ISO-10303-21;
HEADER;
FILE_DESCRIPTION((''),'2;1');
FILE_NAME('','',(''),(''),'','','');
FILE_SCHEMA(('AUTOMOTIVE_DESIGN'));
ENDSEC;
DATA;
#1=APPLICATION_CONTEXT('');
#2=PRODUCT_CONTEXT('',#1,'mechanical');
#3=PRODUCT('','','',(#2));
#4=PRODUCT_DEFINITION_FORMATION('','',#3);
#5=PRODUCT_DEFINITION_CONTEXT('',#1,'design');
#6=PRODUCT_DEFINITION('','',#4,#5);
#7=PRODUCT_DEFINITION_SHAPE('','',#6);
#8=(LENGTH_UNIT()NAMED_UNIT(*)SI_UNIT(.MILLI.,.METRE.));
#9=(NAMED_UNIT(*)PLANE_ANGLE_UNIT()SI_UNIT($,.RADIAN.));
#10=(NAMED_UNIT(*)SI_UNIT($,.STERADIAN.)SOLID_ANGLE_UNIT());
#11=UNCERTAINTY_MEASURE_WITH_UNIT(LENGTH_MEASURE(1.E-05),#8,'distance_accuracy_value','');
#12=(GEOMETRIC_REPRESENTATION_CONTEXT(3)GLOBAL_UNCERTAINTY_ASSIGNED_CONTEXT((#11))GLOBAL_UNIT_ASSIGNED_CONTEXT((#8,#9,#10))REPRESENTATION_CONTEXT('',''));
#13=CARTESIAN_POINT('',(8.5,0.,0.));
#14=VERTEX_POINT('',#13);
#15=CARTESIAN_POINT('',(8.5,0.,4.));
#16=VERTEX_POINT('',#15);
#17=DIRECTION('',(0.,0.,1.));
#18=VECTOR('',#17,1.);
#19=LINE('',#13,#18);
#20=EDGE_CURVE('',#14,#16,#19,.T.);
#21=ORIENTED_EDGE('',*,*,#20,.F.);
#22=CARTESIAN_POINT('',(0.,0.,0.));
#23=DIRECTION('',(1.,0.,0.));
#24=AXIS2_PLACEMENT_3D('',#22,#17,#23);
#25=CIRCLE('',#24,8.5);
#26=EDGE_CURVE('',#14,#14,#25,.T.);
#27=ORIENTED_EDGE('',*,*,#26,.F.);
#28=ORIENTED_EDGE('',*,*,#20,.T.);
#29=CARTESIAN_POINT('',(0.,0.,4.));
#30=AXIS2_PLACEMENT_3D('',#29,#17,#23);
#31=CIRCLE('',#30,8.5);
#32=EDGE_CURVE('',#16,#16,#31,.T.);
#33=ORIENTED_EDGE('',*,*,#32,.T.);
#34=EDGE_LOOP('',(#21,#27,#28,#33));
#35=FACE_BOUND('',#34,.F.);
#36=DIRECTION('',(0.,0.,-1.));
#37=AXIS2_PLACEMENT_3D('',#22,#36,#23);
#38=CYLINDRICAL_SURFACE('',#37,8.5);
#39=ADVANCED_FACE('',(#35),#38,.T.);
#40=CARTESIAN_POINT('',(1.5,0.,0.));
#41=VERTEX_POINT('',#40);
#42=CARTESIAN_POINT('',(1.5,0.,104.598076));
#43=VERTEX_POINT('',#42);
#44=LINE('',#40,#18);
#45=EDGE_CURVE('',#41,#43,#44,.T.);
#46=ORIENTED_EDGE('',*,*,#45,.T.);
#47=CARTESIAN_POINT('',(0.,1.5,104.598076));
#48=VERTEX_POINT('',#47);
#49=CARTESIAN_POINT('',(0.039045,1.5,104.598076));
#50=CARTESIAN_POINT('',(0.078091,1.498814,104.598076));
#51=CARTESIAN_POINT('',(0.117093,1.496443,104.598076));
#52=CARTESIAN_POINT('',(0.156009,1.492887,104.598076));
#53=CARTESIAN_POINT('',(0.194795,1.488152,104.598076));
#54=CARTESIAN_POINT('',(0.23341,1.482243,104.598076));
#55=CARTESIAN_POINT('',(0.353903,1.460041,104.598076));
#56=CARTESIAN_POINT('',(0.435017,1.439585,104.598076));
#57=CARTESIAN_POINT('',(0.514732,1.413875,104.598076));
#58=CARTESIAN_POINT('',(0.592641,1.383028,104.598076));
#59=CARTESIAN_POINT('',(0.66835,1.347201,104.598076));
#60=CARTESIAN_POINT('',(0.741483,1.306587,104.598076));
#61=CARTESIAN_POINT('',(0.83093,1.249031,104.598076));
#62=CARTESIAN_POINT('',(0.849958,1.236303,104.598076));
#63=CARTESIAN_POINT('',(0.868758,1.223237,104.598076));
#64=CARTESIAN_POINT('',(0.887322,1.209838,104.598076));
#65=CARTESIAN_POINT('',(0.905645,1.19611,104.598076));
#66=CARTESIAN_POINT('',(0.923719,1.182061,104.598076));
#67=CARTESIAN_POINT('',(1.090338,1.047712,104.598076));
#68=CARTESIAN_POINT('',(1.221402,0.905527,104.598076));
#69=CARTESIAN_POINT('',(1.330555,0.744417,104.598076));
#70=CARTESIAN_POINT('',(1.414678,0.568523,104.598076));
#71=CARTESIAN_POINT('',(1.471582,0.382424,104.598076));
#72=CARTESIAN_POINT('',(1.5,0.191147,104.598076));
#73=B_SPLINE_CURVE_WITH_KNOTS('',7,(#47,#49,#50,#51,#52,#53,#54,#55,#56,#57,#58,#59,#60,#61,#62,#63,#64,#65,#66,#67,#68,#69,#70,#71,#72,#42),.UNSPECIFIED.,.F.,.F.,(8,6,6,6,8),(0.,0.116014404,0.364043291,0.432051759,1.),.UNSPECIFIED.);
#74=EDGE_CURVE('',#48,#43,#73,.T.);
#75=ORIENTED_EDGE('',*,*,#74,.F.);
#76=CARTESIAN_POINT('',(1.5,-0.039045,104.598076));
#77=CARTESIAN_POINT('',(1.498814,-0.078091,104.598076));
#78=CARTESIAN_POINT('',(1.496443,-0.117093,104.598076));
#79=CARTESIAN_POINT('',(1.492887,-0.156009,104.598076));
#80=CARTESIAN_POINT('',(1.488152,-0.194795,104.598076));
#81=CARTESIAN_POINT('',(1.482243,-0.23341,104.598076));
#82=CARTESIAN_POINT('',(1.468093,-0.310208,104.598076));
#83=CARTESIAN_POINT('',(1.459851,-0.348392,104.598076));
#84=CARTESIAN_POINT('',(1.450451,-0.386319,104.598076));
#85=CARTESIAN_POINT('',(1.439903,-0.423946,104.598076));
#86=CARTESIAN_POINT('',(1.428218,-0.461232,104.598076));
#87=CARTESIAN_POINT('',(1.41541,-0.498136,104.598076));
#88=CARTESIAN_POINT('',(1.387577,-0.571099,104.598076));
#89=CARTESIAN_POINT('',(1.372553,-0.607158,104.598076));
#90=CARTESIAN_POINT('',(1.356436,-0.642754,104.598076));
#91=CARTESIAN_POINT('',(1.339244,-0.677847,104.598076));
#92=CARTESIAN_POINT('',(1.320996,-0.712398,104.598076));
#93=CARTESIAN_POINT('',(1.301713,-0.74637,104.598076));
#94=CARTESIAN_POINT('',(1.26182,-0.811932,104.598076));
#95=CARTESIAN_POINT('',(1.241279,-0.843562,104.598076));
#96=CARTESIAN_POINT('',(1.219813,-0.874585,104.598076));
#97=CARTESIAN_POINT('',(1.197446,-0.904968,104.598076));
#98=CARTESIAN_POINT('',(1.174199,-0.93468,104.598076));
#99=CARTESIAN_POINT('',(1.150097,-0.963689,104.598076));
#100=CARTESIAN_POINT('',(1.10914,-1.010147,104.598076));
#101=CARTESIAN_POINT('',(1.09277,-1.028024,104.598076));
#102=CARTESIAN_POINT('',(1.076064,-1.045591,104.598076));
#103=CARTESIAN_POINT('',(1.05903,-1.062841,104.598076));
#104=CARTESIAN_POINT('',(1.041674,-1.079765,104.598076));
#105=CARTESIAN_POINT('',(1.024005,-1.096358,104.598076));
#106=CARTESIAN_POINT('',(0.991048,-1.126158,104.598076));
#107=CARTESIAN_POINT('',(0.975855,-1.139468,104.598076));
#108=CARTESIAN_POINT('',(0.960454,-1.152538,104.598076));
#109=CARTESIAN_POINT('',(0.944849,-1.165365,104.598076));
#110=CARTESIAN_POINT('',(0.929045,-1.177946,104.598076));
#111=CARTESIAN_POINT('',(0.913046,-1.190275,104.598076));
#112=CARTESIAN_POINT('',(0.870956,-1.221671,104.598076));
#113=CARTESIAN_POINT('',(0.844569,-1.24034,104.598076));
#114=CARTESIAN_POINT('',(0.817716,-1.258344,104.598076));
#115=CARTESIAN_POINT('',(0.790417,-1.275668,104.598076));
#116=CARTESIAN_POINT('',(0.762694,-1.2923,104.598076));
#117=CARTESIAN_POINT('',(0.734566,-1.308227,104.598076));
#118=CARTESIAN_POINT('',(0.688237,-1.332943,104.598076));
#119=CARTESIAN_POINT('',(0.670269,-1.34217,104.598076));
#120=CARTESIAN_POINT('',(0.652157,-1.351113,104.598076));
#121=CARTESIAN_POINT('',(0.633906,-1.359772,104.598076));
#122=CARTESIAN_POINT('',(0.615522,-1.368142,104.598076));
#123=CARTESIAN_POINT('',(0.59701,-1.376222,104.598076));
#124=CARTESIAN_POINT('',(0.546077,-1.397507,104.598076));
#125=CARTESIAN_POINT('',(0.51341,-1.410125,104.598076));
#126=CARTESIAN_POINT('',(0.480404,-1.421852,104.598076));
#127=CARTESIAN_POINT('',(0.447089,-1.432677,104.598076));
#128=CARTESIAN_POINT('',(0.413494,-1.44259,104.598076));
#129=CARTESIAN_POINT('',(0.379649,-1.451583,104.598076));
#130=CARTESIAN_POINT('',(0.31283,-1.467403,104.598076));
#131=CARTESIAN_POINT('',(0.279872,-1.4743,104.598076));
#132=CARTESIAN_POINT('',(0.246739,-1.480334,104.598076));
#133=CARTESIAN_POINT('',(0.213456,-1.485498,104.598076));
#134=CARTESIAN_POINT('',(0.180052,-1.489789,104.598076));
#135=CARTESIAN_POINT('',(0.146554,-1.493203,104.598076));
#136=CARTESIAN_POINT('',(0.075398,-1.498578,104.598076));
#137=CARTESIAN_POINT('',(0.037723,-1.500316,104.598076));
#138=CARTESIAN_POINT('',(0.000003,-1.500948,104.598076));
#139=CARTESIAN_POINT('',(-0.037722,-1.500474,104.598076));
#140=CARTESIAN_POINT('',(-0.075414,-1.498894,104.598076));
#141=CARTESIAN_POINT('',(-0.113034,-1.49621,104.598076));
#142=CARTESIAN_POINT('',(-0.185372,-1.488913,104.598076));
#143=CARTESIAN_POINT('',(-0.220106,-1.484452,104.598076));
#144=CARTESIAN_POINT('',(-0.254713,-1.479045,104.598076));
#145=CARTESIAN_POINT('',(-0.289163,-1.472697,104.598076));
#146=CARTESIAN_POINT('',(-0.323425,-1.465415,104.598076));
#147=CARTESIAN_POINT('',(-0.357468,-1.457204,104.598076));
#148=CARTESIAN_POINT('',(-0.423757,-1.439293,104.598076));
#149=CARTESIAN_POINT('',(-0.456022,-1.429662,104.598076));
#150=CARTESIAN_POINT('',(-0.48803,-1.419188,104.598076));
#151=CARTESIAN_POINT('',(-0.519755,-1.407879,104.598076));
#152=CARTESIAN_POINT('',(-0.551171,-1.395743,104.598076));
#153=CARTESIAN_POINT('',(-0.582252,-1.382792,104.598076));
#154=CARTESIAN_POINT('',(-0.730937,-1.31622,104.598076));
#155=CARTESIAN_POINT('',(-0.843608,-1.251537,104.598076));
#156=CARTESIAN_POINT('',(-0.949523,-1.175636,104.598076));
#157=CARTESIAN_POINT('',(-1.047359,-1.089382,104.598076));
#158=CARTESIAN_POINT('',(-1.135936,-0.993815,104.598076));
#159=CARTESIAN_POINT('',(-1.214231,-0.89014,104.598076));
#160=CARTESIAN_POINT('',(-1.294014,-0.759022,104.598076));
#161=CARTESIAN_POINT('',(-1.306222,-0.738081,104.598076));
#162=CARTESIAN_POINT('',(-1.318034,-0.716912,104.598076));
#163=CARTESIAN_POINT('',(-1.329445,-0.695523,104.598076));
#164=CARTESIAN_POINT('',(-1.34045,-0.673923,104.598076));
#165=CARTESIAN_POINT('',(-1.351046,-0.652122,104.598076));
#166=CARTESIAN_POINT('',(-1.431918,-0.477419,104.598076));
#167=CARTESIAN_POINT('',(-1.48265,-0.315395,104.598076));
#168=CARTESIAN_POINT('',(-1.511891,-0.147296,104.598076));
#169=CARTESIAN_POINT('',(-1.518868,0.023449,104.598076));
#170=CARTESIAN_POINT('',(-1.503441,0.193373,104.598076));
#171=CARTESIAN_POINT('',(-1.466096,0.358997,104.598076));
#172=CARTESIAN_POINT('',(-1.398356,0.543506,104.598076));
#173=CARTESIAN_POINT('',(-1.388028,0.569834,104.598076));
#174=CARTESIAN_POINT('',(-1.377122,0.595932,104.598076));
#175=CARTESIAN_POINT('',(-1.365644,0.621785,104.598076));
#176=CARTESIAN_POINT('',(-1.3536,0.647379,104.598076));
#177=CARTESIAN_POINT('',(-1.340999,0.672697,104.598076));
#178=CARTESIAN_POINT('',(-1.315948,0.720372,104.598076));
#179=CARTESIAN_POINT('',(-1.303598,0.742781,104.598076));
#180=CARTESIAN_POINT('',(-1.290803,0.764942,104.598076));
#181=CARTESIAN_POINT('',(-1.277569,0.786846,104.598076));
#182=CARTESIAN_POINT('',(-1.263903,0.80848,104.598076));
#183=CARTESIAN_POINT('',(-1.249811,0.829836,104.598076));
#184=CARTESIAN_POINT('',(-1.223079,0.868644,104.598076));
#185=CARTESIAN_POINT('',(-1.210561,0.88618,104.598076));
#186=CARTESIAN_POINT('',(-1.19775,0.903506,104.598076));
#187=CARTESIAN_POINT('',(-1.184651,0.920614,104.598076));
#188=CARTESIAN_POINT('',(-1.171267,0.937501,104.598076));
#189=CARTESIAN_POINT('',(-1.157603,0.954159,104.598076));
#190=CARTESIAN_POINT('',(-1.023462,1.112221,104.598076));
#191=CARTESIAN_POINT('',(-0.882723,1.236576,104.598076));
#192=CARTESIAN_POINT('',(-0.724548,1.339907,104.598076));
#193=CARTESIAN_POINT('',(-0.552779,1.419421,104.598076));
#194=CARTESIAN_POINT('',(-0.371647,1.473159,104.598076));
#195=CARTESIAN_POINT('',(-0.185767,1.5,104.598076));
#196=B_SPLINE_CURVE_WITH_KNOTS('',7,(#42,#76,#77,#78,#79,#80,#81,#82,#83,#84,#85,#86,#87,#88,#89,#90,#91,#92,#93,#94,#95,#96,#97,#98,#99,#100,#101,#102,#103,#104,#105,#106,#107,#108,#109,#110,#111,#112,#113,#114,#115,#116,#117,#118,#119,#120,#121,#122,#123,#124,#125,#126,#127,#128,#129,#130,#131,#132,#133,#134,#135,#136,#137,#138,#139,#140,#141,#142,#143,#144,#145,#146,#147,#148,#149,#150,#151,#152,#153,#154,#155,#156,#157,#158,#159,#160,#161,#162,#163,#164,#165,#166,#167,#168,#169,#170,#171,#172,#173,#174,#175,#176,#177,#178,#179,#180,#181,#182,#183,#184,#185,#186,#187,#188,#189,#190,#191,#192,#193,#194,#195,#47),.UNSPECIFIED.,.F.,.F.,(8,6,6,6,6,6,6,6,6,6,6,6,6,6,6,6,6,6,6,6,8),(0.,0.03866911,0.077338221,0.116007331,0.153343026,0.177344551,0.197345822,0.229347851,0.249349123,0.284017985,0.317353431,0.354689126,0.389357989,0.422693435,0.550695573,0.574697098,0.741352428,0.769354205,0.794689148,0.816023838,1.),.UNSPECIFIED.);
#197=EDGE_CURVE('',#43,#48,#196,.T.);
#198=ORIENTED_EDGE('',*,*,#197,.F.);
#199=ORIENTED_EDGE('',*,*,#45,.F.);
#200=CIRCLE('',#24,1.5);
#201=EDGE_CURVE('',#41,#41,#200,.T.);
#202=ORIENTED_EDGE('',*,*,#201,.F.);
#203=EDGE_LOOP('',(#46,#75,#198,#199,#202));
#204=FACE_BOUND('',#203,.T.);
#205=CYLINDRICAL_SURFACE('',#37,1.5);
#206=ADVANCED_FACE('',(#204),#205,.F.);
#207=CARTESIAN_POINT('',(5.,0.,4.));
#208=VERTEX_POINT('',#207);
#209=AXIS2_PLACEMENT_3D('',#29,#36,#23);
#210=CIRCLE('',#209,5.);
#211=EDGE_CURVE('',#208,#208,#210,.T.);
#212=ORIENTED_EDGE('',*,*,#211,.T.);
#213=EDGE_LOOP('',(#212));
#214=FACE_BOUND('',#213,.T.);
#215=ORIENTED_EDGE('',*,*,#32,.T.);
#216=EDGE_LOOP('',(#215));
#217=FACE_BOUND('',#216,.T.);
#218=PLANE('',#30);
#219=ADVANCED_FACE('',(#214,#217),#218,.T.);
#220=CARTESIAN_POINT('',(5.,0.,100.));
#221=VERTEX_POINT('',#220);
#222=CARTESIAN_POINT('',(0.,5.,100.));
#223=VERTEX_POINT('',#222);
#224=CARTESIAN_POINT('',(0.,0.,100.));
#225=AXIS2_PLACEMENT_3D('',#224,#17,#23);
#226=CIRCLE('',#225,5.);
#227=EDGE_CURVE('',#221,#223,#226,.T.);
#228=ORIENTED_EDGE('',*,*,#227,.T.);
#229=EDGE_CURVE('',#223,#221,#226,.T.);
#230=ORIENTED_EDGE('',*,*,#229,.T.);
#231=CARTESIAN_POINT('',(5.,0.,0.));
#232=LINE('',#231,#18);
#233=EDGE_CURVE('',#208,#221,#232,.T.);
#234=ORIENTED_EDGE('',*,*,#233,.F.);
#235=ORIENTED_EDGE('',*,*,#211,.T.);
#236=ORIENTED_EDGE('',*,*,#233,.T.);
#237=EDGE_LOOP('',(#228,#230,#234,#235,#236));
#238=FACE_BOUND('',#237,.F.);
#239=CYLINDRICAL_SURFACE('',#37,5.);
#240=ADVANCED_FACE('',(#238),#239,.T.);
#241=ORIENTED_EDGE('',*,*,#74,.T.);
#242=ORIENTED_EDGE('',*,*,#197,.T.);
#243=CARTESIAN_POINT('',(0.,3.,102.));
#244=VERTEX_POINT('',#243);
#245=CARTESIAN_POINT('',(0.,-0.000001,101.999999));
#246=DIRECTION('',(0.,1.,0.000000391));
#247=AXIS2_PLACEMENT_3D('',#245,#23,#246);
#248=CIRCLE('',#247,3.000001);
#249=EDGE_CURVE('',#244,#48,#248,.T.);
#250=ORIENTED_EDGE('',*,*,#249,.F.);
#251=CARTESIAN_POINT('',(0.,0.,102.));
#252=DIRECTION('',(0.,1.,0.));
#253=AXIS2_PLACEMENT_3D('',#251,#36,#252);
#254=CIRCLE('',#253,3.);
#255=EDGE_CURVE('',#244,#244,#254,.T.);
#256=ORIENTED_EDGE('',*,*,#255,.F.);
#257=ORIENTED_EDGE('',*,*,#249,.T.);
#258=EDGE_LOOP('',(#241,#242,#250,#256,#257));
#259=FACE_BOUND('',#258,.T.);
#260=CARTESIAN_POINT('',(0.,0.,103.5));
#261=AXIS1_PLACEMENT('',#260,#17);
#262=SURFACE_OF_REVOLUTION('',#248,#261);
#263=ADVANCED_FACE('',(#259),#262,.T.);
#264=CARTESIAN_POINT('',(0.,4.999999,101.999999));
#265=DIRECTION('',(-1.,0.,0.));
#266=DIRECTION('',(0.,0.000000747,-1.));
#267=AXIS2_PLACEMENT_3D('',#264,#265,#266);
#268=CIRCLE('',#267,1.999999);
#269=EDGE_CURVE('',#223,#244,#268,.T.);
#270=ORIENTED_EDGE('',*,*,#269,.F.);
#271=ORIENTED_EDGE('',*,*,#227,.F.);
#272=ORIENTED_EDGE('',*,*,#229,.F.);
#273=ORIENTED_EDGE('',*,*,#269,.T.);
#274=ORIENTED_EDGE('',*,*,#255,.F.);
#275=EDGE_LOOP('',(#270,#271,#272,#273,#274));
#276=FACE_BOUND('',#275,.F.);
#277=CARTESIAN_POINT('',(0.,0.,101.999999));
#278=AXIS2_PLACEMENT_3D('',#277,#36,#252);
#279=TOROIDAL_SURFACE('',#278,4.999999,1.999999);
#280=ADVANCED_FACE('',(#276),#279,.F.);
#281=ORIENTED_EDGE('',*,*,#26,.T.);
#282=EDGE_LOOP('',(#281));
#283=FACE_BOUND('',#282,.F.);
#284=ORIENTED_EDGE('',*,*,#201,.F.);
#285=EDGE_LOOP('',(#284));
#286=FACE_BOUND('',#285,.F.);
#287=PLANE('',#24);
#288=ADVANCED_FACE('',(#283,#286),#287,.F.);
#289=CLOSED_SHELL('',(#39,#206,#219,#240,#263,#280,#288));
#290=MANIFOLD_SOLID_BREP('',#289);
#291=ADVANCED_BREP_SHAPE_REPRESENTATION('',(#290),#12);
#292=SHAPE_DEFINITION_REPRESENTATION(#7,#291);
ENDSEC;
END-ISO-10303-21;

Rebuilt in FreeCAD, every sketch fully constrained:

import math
import FreeCAD as App
import Part
import Sketcher

doc = App.newDocument("Part")
body = doc.addObject("PartDesign::Body", "Body")

# Sketch on XY plane
sketch1 = doc.addObject("Sketcher::SketchObject", "Sketch")
body.addObject(sketch1)
sketch1.AttachmentSupport = (doc.XY_Plane, [""])
sketch1.MapMode = "FlatFace"
sketch1.addGeometry(Part.Circle(App.Vector(0, 0, 0), App.Vector(0, 0, 1), 8), False)
sketch1.addConstraint([
    Sketcher.Constraint("Coincident", 0, 3, -1, 1),
    Sketcher.Constraint("Diameter", 0, 17.0),
])
pad1 = doc.addObject("PartDesign::Pad", "Pad")
body.addObject(pad1)
pad1.Profile = sketch1
pad1.Length = 4

# Sketch on XY plane
sketch2 = doc.addObject("Sketcher::SketchObject", "Sketch001")
body.addObject(sketch2)
sketch2.AttachmentSupport = (doc.XY_Plane, [""])
sketch2.MapMode = "FlatFace"
sketch2.addGeometry(Part.Circle(App.Vector(0, 0, 0), App.Vector(0, 0, 1), 5), False)
sketch2.addConstraint([
    Sketcher.Constraint("Coincident", 0, 3, -1, 1),
    Sketcher.Constraint("Diameter", 0, 10.0),
])
pad2 = doc.addObject("PartDesign::Pad", "Pad001")
body.addObject(pad2)
pad2.Profile = sketch2
pad2.Length = 100

# Sketch on YZ plane
sketch3 = doc.addObject("Sketcher::SketchObject", "Sketch002")
body.addObject(sketch3)
sketch3.AttachmentSupport = (doc.YZ_Plane, [""])
sketch3.MapMode = "FlatFace"
sketch3.addGeometry([
    Part.LineSegment(App.Vector(3, 102, 0), App.Vector(0, 102, 0)),
    Part.LineSegment(App.Vector(0, 102, 0), App.Vector(0, 100, 0)),
    Part.LineSegment(App.Vector(0, 100, 0), App.Vector(5, 100, 0)),
    Part.ArcOfCircle(Part.Circle(App.Vector(5, 102, 0), App.Vector(0, 0, 1), 2), math.radians(180), math.radians(270)),
], False)
sketch3.addConstraint([
    Sketcher.Constraint("Coincident", 0, 2, 1, 1),
    Sketcher.Constraint("Coincident", 1, 2, 2, 1),
    Sketcher.Constraint("Tangent", 2, 2, 3, 2),
    Sketcher.Constraint("Coincident", 3, 1, 0, 1),
    Sketcher.Constraint("Horizontal", 0),
    Sketcher.Constraint("Vertical", 1),
    Sketcher.Constraint("Horizontal", 2),
    Sketcher.Constraint("PointOnObject", 0, 2, -2),
    Sketcher.Constraint("Horizontal", 3, 3, 0, 2),
    Sketcher.Constraint("Radius", 3, 1.999999),
    Sketcher.Constraint("DistanceX", 0, 2, 0, 1, 3.0),
    Sketcher.Constraint("DistanceY", -1, 1, 3, 3, 101.999999),
])
revolution = doc.addObject("PartDesign::Revolution", "Revolution")
body.addObject(revolution)
revolution.Profile = sketch3
revolution.ReferenceAxis = (sketch3, ["V_Axis"])
revolution.Angle = 360

# Sketch on YZ plane
sketch4 = doc.addObject("Sketcher::SketchObject", "Sketch003")
body.addObject(sketch4)
sketch4.AttachmentSupport = (doc.YZ_Plane, [""])
sketch4.MapMode = "FlatFace"
sketch4.addGeometry([
    Part.LineSegment(App.Vector(0, 105, 0), App.Vector(0, 102, 0)),
    Part.LineSegment(App.Vector(0, 102, 0), App.Vector(3, 102, 0)),
    Part.ArcOfCircle(Part.Circle(App.Vector(0, 102, 0), App.Vector(0, 0, 1), 3), math.radians(0), math.radians(90)),
], False)
sketch4.addConstraint([
    Sketcher.Constraint("Coincident", 0, 2, 1, 1),
    Sketcher.Constraint("Coincident", 1, 2, 2, 1),
    Sketcher.Constraint("Coincident", 2, 2, 0, 1),
    Sketcher.Constraint("Vertical", 0),
    Sketcher.Constraint("Horizontal", 1),
    Sketcher.Constraint("Coincident", 0, 2, 2, 3),
    Sketcher.Constraint("PointOnObject", 2, 3, -2),
    Sketcher.Constraint("Radius", 2, 3.000001),
    Sketcher.Constraint("DistanceY", -1, 1, 2, 3, 101.999999),
])
revolution2 = doc.addObject("PartDesign::Revolution", "Revolution001")
body.addObject(revolution2)
revolution2.Profile = sketch4
revolution2.ReferenceAxis = (sketch4, ["V_Axis"])
revolution2.Angle = 360

# Sketch on XY plane
sketch5 = doc.addObject("Sketcher::SketchObject", "Sketch004")
body.addObject(sketch5)
sketch5.AttachmentSupport = (doc.XY_Plane, [""])
sketch5.MapMode = "FlatFace"
sketch5.addGeometry(Part.Circle(App.Vector(0, 0, 0), App.Vector(0, 0, 1), 1.5), False)
sketch5.addConstraint([
    Sketcher.Constraint("Coincident", 0, 3, -1, 1),
    Sketcher.Constraint("Diameter", 0, 3.0),
])
pocket1 = doc.addObject("PartDesign::Pocket", "Pocket")
body.addObject(pocket1)
pocket1.Profile = sketch5
pocket1.Length = 109.5
pocket1.Reversed = True

doc.recompute()
